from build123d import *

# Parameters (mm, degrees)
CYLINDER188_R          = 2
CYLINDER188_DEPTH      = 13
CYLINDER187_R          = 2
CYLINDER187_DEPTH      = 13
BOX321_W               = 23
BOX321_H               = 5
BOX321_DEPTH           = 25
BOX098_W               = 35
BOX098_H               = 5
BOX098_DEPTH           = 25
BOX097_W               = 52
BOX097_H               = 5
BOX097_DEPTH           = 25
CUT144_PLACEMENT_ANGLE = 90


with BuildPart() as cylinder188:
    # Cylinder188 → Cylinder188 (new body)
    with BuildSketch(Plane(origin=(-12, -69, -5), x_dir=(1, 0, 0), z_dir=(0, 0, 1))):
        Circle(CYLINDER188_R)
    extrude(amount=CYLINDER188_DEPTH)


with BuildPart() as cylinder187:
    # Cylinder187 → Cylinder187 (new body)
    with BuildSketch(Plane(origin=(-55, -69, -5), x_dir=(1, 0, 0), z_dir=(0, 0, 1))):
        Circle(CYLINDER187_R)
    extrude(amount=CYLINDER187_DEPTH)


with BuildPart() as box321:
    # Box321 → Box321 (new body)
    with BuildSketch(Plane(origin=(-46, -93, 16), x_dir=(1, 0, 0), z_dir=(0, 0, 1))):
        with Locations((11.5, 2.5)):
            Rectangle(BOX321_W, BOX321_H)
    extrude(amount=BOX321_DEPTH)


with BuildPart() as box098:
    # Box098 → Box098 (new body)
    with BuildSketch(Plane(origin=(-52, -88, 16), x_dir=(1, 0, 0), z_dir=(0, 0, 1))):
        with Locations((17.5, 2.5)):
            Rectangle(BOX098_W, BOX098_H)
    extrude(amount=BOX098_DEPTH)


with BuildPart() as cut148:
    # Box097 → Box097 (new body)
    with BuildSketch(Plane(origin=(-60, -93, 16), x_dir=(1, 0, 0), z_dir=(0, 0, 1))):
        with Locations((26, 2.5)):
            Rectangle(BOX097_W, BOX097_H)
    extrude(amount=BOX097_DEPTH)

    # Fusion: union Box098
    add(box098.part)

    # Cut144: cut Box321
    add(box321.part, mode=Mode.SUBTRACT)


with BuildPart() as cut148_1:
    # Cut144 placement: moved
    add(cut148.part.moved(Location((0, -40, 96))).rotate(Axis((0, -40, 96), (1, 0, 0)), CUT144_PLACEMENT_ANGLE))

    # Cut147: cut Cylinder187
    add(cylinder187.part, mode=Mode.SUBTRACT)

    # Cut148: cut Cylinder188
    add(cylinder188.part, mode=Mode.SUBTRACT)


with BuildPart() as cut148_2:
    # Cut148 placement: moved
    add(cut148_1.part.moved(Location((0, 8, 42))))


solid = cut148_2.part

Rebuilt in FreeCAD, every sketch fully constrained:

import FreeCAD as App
import Part
import Sketcher
from FreeCAD import Vector
Q = App.Units.Quantity

doc = App.newDocument("Part")
body = doc.addObject("PartDesign::Body", "Body")

# Sketch on XY plane
sketch1 = body.newObject("Sketcher::SketchObject", "Sketch")
sketch1.AttachmentSupport = (doc.getObject("XY_Plane"), [""])
sketch1.MapMode = "FlatFace"
sketch1.AttachmentOffset = App.Placement(Vector(0, 0, -5), App.Rotation())
sketch1.addGeometry(Part.Circle(Vector(-12, -69, 0), Vector(0, 0, 1), 2), False)
sketch1.addConstraint([
    Sketcher.Constraint("Diameter", 0, Q("4 mm")),
    Sketcher.Constraint("DistanceX", 0, 3, -1, 1, Q("12 mm")),
    Sketcher.Constraint("DistanceY", 0, 3, -1, 1, Q("69 mm")),
])
pad1 = body.newObject("PartDesign::Pad", "Pad")
pad1.Profile = sketch1
pad1.Length = 13
body2 = doc.addObject("PartDesign::Body", "Body001")

# Sketch on XY plane
sketch2 = body2.newObject("Sketcher::SketchObject", "Sketch001")
sketch2.AttachmentSupport = (doc.getObject("XY_Plane001"), [""])
sketch2.MapMode = "FlatFace"
sketch2.AttachmentOffset = App.Placement(Vector(0, 0, -5), App.Rotation())
sketch2.addGeometry(Part.Circle(Vector(-55, -69, 0), Vector(0, 0, 1), 2), False)
sketch2.addConstraint([
    Sketcher.Constraint("Diameter", 0, Q("4 mm")),
    Sketcher.Constraint("DistanceX", 0, 3, -1, 1, Q("55 mm")),
    Sketcher.Constraint("DistanceY", 0, 3, -1, 1, Q("69 mm")),
])
pad2 = body2.newObject("PartDesign::Pad", "Pad001")
pad2.Profile = sketch2
pad2.Length = 13
body3 = doc.addObject("PartDesign::Body", "Body002")

# Sketch on XY plane
sketch3 = body3.newObject("Sketcher::SketchObject", "Sketch002")
sketch3.AttachmentSupport = (doc.getObject("XY_Plane002"), [""])
sketch3.MapMode = "FlatFace"
sketch3.AttachmentOffset = App.Placement(Vector(0, 0, 16), App.Rotation())
sketch3.addGeometry([
    Part.LineSegment(Vector(-46, -88, 0), Vector(-46, -93, 0)),
    Part.LineSegment(Vector(-46, -93, 0), Vector(-23, -93, 0)),
    Part.LineSegment(Vector(-23, -93, 0), Vector(-23, -88, 0)),
    Part.LineSegment(Vector(-23, -88, 0), Vector(-46, -88, 0)),
], False)
sketch3.addConstraint([
    Sketcher.Constraint("Coincident", 0, 2, 1, 1),
    Sketcher.Constraint("Coincident", 1, 2, 2, 1),
    Sketcher.Constraint("Coincident", 2, 2, 3, 1),
    Sketcher.Constraint("Coincident", 3, 2, 0, 1),
    Sketcher.Constraint("Vertical", 0),
    Sketcher.Constraint("Horizontal", 1),
    Sketcher.Constraint("Vertical", 2),
    Sketcher.Constraint("Horizontal", 3),
    Sketcher.Constraint("DistanceX", 1, 1, 1, 2, Q("23 mm")),
    Sketcher.Constraint("DistanceY", 0, 2, 0, 1, Q("5 mm")),
    Sketcher.Constraint("DistanceX", 0, 2, -1, 1, Q("46 mm")),
    Sketcher.Constraint("DistanceY", 0, 2, -1, 1, Q("93 mm")),
])
pad3 = body3.newObject("PartDesign::Pad", "Pad002")
pad3.Profile = sketch3
pad3.Length = 25
body4 = doc.addObject("PartDesign::Body", "Body003")

# Sketch on XY plane
sketch4 = body4.newObject("Sketcher::SketchObject", "Sketch003")
sketch4.AttachmentSupport = (doc.getObject("XY_Plane003"), [""])
sketch4.MapMode = "FlatFace"
sketch4.AttachmentOffset = App.Placement(Vector(0, 0, 16), App.Rotation())
sketch4.addGeometry([
    Part.LineSegment(Vector(-52, -83, 0), Vector(-52, -88, 0)),
    Part.LineSegment(Vector(-52, -88, 0), Vector(-17, -88, 0)),
    Part.LineSegment(Vector(-17, -88, 0), Vector(-17, -83, 0)),
    Part.LineSegment(Vector(-17, -83, 0), Vector(-52, -83, 0)),
], False)
sketch4.addConstraint([
    Sketcher.Constraint("Coincident", 0, 2, 1, 1),
    Sketcher.Constraint("Coincident", 1, 2, 2, 1),
    Sketcher.Constraint("Coincident", 2, 2, 3, 1),
    Sketcher.Constraint("Coincident", 3, 2, 0, 1),
    Sketcher.Constraint("Vertical", 0),
    Sketcher.Constraint("Horizontal", 1),
    Sketcher.Constraint("Vertical", 2),
    Sketcher.Constraint("Horizontal", 3),
    Sketcher.Constraint("DistanceX", 1, 1, 1, 2, Q("35 mm")),
    Sketcher.Constraint("DistanceY", 0, 2, 0, 1, Q("5 mm")),
    Sketcher.Constraint("DistanceX", 0, 2, -1, 1, Q("52 mm")),
    Sketcher.Constraint("DistanceY", 0, 2, -1, 1, Q("88 mm")),
])
pad4 = body4.newObject("PartDesign::Pad", "Pad003")
pad4.Profile = sketch4
pad4.Length = 25
body5 = doc.addObject("PartDesign::Body", "Body004")

# Sketch on XY plane
sketch5 = body5.newObject("Sketcher::SketchObject", "Sketch004")
sketch5.AttachmentSupport = (doc.getObject("XY_Plane004"), [""])
sketch5.MapMode = "FlatFace"
sketch5.AttachmentOffset = App.Placement(Vector(0, 0, 16), App.Rotation())
sketch5.addGeometry([
    Part.LineSegment(Vector(-60, -88, 0), Vector(-60, -93, 0)),
    Part.LineSegment(Vector(-60, -93, 0), Vector(-8, -93, 0)),
    Part.LineSegment(Vector(-8, -93, 0), Vector(-8, -88, 0)),
    Part.LineSegment(Vector(-8, -88, 0), Vector(-60, -88, 0)),
], False)
sketch5.addConstraint([
    Sketcher.Constraint("Coincident", 0, 2, 1, 1),
    Sketcher.Constraint("Coincident", 1, 2, 2, 1),
    Sketcher.Constraint("Coincident", 2, 2, 3, 1),
    Sketcher.Constraint("Coincident", 3, 2, 0, 1),
    Sketcher.Constraint("Vertical", 0),
    Sketcher.Constraint("Horizontal", 1),
    Sketcher.Constraint("Vertical", 2),
    Sketcher.Constraint("Horizontal", 3),
    Sketcher.Constraint("DistanceX", 1, 1, 1, 2, Q("52 mm")),
    Sketcher.Constraint("DistanceY", 0, 2, 0, 1, Q("5 mm")),
    Sketcher.Constraint("DistanceX", 0, 2, -1, 1, Q("60 mm")),
    Sketcher.Constraint("DistanceY", 0, 2, -1, 1, Q("93 mm")),
])
pad5 = body5.newObject("PartDesign::Pad", "Pad004")
pad5.Profile = sketch5
pad5.Length = 25
doc.recompute()

boolean = body5.newObject("PartDesign::Boolean", "Boolean")
boolean.Type = "Fuse"
boolean.addObjects([body4])
doc.recompute()

boolean2 = body5.newObject("PartDesign::Boolean", "Boolean001")
boolean2.Type = "Cut"
boolean2.addObjects([body3])
body6 = doc.addObject("PartDesign::Body", "Body005")
doc.recompute()

body5.Placement = App.Placement(Vector(0, -40, 96), App.Rotation(Vector(1, 0, 0), 90))
boolean3 = body6.newObject("PartDesign::Boolean", "Boolean002")
boolean3.Type = "Fuse"
boolean3.addObjects([body5])
doc.recompute()

boolean4 = body6.newObject("PartDesign::Boolean", "Boolean003")
boolean4.Type = "Cut"
boolean4.addObjects([body2])
doc.recompute()

boolean5 = body6.newObject("PartDesign::Boolean", "Boolean004")
boolean5.Type = "Cut"
boolean5.addObjects([body])
body7 = doc.addObject("PartDesign::Body", "Body006")
doc.recompute()

body6.Placement = App.Placement(Vector(0, 8, 42), App.Rotation(Vector(0, 0, 1), 0))
boolean6 = body7.newObject("PartDesign::Boolean", "Boolean005")
boolean6.Type = "Fuse"
boolean6.addObjects([body6])

doc.recompute()
